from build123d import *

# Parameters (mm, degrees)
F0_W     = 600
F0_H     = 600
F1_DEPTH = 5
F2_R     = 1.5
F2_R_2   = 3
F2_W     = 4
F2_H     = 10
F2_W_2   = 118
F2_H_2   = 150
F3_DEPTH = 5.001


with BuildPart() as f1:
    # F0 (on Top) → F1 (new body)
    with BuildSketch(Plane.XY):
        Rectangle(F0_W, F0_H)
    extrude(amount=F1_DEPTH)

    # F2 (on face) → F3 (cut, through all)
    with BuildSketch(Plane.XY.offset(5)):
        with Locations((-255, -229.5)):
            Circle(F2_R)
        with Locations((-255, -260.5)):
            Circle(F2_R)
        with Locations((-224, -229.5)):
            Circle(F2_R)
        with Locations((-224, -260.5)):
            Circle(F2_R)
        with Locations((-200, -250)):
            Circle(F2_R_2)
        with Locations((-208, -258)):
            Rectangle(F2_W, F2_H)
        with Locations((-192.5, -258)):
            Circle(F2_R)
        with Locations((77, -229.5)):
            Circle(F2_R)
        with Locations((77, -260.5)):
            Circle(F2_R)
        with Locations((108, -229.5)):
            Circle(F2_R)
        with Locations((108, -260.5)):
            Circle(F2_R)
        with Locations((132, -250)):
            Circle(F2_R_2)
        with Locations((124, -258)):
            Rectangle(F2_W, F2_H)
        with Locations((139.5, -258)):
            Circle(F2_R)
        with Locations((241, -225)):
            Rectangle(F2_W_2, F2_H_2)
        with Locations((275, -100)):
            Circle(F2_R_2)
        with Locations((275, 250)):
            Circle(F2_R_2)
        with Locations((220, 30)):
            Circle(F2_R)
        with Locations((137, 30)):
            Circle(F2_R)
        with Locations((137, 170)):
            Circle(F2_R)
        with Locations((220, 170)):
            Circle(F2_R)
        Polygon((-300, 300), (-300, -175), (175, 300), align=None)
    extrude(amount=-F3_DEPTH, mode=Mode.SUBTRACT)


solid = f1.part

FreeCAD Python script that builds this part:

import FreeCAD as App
import Part
import Sketcher
from FreeCAD import Vector


def add_polygon(sketch, points):
    """Adds a closed chain of lines whose ends are joined by coincident constraints."""
    first, n = sketch.GeometryCount, len(points)
    for a, b in zip(points, points[1:] + points[:1]):
        sketch.addGeometry(Part.LineSegment(App.Vector(*a, 0), App.Vector(*b, 0)), False)
    for i in range(n):
        sketch.addConstraint(Sketcher.Constraint("Coincident", first + i, 2, first + (i + 1) % n, 1))

doc = App.newDocument("Part")
body = doc.addObject("PartDesign::Body", "Body")

sketch1 = body.newObject("Sketcher::SketchObject", "Sketch")
sketch1.AttachmentSupport = (doc.getObject("XY_Plane"), [""])
sketch1.MapMode = "FlatFace"
add_polygon(sketch1, [(-300, 300), (-300, -300), (300, -300), (300, 300)])
sketch1.addConstraint(Sketcher.Constraint("Vertical", 0))
sketch1.addConstraint(Sketcher.Constraint("Horizontal", 1))
sketch1.addConstraint(Sketcher.Constraint("Vertical", 2))
sketch1.addConstraint(Sketcher.Constraint("Horizontal", 3))
sketch1.addConstraint(Sketcher.Constraint("Symmetric", 0, 2, 2, 2, -1, 1))
sketch1.addConstraint(Sketcher.Constraint("Equal", 3, 0))
sketch1.addConstraint(Sketcher.Constraint("DistanceX", 1, 1, 1, 2, 600.0))
pad1 = body.newObject("PartDesign::Pad", "Pad")
pad1.Profile = sketch1
pad1.Length = 5

sketch2 = body.newObject("Sketcher::SketchObject", "Sketch001")
sketch2.AttachmentSupport = (doc.getObject("XY_Plane"), [""])
sketch2.MapMode = "FlatFace"
sketch2.AttachmentOffset = App.Placement(Vector(0, 0, 5), App.Rotation())
sketch2.addGeometry(Part.Circle(Vector(-255, -229.5, 0), Vector(0, 0, 1), 1.5), False)
sketch2.addGeometry(Part.Circle(Vector(-255, -260.5, 0), Vector(0, 0, 1), 1.5), False)
sketch2.addGeometry(Part.Circle(Vector(-224, -229.5, 0), Vector(0, 0, 1), 1.5), False)
sketch2.addGeometry(Part.Circle(Vector(-224, -260.5, 0), Vector(0, 0, 1), 1.5), False)
sketch2.addGeometry(Part.Circle(Vector(-200, -250, 0), Vector(0, 0, 1), 3), False)
add_polygon(sketch2, [(-210, -253), (-210, -263), (-206, -263), (-206, -253)])
sketch2.addGeometry(Part.Circle(Vector(-192.5, -258, 0), Vector(0, 0, 1), 1.5), False)
sketch2.addGeometry(Part.Circle(Vector(77, -229.5, 0), Vector(0, 0, 1), 1.5), False)
sketch2.addGeometry(Part.Circle(Vector(77, -260.5, 0), Vector(0, 0, 1), 1.5), False)
sketch2.addGeometry(Part.Circle(Vector(108, -229.5, 0), Vector(0, 0, 1), 1.5), False)
sketch2.addGeometry(Part.Circle(Vector(108, -260.5, 0), Vector(0, 0, 1), 1.5), False)
sketch2.addGeometry(Part.Circle(Vector(132, -250, 0), Vector(0, 0, 1), 3), False)
add_polygon(sketch2, [(122, -253), (122, -263), (126, -263), (126, -253)])
sketch2.addGeometry(Part.Circle(Vector(139.5, -258, 0), Vector(0, 0, 1), 1.5), False)
add_polygon(sketch2, [(182, -150), (182, -300), (300, -300), (300, -150)])
sketch2.addGeometry(Part.Circle(Vector(275, -100, 0), Vector(0, 0, 1), 3), False)
sketch2.addGeometry(Part.Circle(Vector(275, 250, 0), Vector(0, 0, 1), 3), False)
sketch2.addGeometry(Part.Circle(Vector(220, 30, 0), Vector(0, 0, 1), 1.5), False)
sketch2.addGeometry(Part.Circle(Vector(137, 30, 0), Vector(0, 0, 1), 1.5), False)
sketch2.addGeometry(Part.Circle(Vector(137, 170, 0), Vector(0, 0, 1), 1.5), False)
sketch2.addGeometry(Part.Circle(Vector(220, 170, 0), Vector(0, 0, 1), 1.5), False)
add_polygon(sketch2, [(-300, 300), (-300, -175), (175, 300)])
sketch2.addConstraint(Sketcher.Constraint("Vertical", 5))
sketch2.addConstraint(Sketcher.Constraint("Horizontal", 6))
sketch2.addConstraint(Sketcher.Constraint("Vertical", 7))
sketch2.addConstraint(Sketcher.Constraint("Horizontal", 8))
sketch2.addConstraint(Sketcher.Constraint("Vertical", 15))
sketch2.addConstraint(Sketcher.Constraint("Horizontal", 16))
sketch2.addConstraint(Sketcher.Constraint("Vertical", 17))
sketch2.addConstraint(Sketcher.Constraint("Horizontal", 18))
sketch2.addConstraint(Sketcher.Constraint("Vertical", 20))
sketch2.addConstraint(Sketcher.Constraint("Horizontal", 21))
sketch2.addConstraint(Sketcher.Constraint("Vertical", 22))
sketch2.addConstraint(Sketcher.Constraint("Horizontal", 23))
sketch2.addConstraint(Sketcher.Constraint("Vertical", 30))
sketch2.addConstraint(Sketcher.Constraint("Horizontal", 32))
sketch2.addConstraint(Sketcher.Constraint("Equal", 0, 1))
sketch2.addConstraint(Sketcher.Constraint("Equal", 1, 2))
sketch2.addConstraint(Sketcher.Constraint("Equal", 2, 3))
sketch2.addConstraint(Sketcher.Constraint("Equal", 3, 9))
sketch2.addConstraint(Sketcher.Constraint("Equal", 9, 10))
sketch2.addConstraint(Sketcher.Constraint("Equal", 10, 11))
sketch2.addConstraint(Sketcher.Constraint("Equal", 11, 12))
sketch2.addConstraint(Sketcher.Constraint("Equal", 12, 13))
sketch2.addConstraint(Sketcher.Constraint("Equal", 4, 14))
sketch2.addConstraint(Sketcher.Constraint("Equal", 13, 19))
sketch2.addConstraint(Sketcher.Constraint("Equal", 14, 24))
sketch2.addConstraint(Sketcher.Constraint("Equal", 24, 25))
sketch2.addConstraint(Sketcher.Constraint("Equal", 19, 26))
sketch2.addConstraint(Sketcher.Constraint("Equal", 26, 27))
sketch2.addConstraint(Sketcher.Constraint("Equal", 27, 28))
sketch2.addConstraint(Sketcher.Constraint("Equal", 28, 29))
sketch2.addConstraint(Sketcher.Constraint("Symmetric", 21, 2, 32, 2, -1, 1))
sketch2.addConstraint(Sketcher.Constraint("Horizontal", 0, 3, 2, 3))
sketch2.addConstraint(Sketcher.Constraint("Horizontal", 1, 3, 3, 3))
sketch2.addConstraint(Sketcher.Constraint("Horizontal", 2, 3, 10, 3))
sketch2.addConstraint(Sketcher.Constraint("Horizontal", 3, 3, 11, 3))
sketch2.addConstraint(Sketcher.Constraint("Horizontal", 10, 3, 12, 3))
sketch2.addConstraint(Sketcher.Constraint("Horizontal", 11, 3, 13, 3))
sketch2.addConstraint(Sketcher.Constraint("Horizontal", 4, 3, 14, 3))
sketch2.addConstraint(Sketcher.Constraint("Horizontal", 9, 3, 19, 3))
sketch2.addConstraint(Sketcher.Constraint("Horizontal", 26, 3, 27, 3))
sketch2.addConstraint(Sketcher.Constraint("Horizontal", 28, 3, 29, 3))
sketch2.addConstraint(Sketcher.Constraint("Horizontal", 6, 2, 15, 2))
sketch2.addConstraint(Sketcher.Constraint("Horizontal", 8, 2, 17, 2))
sketch2.addConstraint(Sketcher.Constraint("Vertical", 0, 3, 1, 3))
sketch2.addConstraint(Sketcher.Constraint("Vertical", 2, 3, 3, 3))
sketch2.addConstraint(Sketcher.Constraint("Vertical", 10, 3, 11, 3))
sketch2.addConstraint(Sketcher.Constraint("Vertical", 12, 3, 13, 3))
sketch2.addConstraint(Sketcher.Constraint("Vertical", 24, 3, 25, 3))
sketch2.addConstraint(Sketcher.Constraint("Vertical", 27, 3, 28, 3))
sketch2.addConstraint(Sketcher.Constraint("Vertical", 26, 3, 29, 3))
sketch2.addConstraint(Sketcher.Constraint("Equal", 8, 16))
sketch2.addConstraint(Sketcher.Constraint("Equal", 32, 30))
sketch2.addConstraint(Sketcher.Constraint("Diameter", 0, 3.0))
sketch2.addConstraint(Sketcher.Constraint("Diameter", 4, 6.0))
sketch2.addConstraint(Sketcher.Constraint("DistanceX", 6, 1, 6, 2, 4.0))
sketch2.addConstraint(Sketcher.Constraint("DistanceX", 21, 1, 21, 2, 118.0))
sketch2.addConstraint(Sketcher.Constraint("DistanceX", 32, 2, 32, 1, 475.0))
sketch2.addConstraint(Sketcher.Constraint("DistanceY", 5, 2, 5, 1, 10.0))
sketch2.addConstraint(Sketcher.Constraint("DistanceY", 20, 2, 20, 1, 150.0))
sketch2.addConstraint(Sketcher.Constraint("DistanceX", 0, 3, -1, 1, 255.0))
sketch2.addConstraint(Sketcher.Constraint("DistanceX", 2, 3, -1, 1, 224.0))
sketch2.addConstraint(Sketcher.Constraint("DistanceX", 4, 3, -1, 1, 200.0))
sketch2.addConstraint(Sketcher.Constraint("DistanceY", 4, 3, -1, 1, 250.0))
sketch2.addConstraint(Sketcher.Constraint("DistanceY", 9, 3, -1, 1, 258.0))
sketch2.addConstraint(Sketcher.Constraint("DistanceX", -1, 1, 10, 3, 77.0))
sketch2.addConstraint(Sketcher.Constraint("DistanceX", -1, 1, 12, 3, 108.0))
sketch2.addConstraint(Sketcher.Constraint("DistanceX", -1, 1, 14, 3, 132.0))
sketch2.addConstraint(Sketcher.Constraint("DistanceX", -1, 1, 24, 3, 275.0))
sketch2.addConstraint(Sketcher.Constraint("DistanceY", 24, 3, -1, 1, 100.0))
sketch2.addConstraint(Sketcher.Constraint("DistanceY", -1, 1, 25, 3, 250.0))
sketch2.addConstraint(Sketcher.Constraint("DistanceX", -1, 1, 26, 3, 220.0))
sketch2.addConstraint(Sketcher.Constraint("DistanceY", -1, 1, 26, 3, 30.0))
sketch2.addConstraint(Sketcher.Constraint("DistanceX", -1, 1, 27, 3, 137.0))
sketch2.addConstraint(Sketcher.Constraint("DistanceY", -1, 1, 28, 3, 170.0))
sketch2.addConstraint(Sketcher.Constraint("DistanceX", 5, 2, -1, 1, 210.0))
sketch2.addConstraint(Sketcher.Constraint("DistanceY", 5, 2, -1, 1, 263.0))
sketch2.addConstraint(Sketcher.Constraint("DistanceX", -1, 1, 15, 2, 122.0))
sketch2.addConstraint(Sketcher.Constraint("DistanceX", -1, 1, 20, 2, 182.0))
sketch2.addConstraint(Sketcher.Constraint("DistanceY", 20, 2, -1, 1, 300.0))
sketch2.addConstraint(Sketcher.Constraint("DistanceY", 1, 3, 0, 3, 31.0))
sketch2.addConstraint(Sketcher.Constraint("DistanceY", 0, 3, -1, 1, 229.5))
sketch2.addConstraint(Sketcher.Constraint("DistanceX", 9, 3, -1, 1, 192.5))
sketch2.addConstraint(Sketcher.Constraint("DistanceX", -1, 1, 19, 3, 139.5))
pocket1 = body.newObject("PartDesign::Pocket", "Pocket")
pocket1.Profile = sketch2
pocket1.Type = "ThroughAll"

doc.recompute()
